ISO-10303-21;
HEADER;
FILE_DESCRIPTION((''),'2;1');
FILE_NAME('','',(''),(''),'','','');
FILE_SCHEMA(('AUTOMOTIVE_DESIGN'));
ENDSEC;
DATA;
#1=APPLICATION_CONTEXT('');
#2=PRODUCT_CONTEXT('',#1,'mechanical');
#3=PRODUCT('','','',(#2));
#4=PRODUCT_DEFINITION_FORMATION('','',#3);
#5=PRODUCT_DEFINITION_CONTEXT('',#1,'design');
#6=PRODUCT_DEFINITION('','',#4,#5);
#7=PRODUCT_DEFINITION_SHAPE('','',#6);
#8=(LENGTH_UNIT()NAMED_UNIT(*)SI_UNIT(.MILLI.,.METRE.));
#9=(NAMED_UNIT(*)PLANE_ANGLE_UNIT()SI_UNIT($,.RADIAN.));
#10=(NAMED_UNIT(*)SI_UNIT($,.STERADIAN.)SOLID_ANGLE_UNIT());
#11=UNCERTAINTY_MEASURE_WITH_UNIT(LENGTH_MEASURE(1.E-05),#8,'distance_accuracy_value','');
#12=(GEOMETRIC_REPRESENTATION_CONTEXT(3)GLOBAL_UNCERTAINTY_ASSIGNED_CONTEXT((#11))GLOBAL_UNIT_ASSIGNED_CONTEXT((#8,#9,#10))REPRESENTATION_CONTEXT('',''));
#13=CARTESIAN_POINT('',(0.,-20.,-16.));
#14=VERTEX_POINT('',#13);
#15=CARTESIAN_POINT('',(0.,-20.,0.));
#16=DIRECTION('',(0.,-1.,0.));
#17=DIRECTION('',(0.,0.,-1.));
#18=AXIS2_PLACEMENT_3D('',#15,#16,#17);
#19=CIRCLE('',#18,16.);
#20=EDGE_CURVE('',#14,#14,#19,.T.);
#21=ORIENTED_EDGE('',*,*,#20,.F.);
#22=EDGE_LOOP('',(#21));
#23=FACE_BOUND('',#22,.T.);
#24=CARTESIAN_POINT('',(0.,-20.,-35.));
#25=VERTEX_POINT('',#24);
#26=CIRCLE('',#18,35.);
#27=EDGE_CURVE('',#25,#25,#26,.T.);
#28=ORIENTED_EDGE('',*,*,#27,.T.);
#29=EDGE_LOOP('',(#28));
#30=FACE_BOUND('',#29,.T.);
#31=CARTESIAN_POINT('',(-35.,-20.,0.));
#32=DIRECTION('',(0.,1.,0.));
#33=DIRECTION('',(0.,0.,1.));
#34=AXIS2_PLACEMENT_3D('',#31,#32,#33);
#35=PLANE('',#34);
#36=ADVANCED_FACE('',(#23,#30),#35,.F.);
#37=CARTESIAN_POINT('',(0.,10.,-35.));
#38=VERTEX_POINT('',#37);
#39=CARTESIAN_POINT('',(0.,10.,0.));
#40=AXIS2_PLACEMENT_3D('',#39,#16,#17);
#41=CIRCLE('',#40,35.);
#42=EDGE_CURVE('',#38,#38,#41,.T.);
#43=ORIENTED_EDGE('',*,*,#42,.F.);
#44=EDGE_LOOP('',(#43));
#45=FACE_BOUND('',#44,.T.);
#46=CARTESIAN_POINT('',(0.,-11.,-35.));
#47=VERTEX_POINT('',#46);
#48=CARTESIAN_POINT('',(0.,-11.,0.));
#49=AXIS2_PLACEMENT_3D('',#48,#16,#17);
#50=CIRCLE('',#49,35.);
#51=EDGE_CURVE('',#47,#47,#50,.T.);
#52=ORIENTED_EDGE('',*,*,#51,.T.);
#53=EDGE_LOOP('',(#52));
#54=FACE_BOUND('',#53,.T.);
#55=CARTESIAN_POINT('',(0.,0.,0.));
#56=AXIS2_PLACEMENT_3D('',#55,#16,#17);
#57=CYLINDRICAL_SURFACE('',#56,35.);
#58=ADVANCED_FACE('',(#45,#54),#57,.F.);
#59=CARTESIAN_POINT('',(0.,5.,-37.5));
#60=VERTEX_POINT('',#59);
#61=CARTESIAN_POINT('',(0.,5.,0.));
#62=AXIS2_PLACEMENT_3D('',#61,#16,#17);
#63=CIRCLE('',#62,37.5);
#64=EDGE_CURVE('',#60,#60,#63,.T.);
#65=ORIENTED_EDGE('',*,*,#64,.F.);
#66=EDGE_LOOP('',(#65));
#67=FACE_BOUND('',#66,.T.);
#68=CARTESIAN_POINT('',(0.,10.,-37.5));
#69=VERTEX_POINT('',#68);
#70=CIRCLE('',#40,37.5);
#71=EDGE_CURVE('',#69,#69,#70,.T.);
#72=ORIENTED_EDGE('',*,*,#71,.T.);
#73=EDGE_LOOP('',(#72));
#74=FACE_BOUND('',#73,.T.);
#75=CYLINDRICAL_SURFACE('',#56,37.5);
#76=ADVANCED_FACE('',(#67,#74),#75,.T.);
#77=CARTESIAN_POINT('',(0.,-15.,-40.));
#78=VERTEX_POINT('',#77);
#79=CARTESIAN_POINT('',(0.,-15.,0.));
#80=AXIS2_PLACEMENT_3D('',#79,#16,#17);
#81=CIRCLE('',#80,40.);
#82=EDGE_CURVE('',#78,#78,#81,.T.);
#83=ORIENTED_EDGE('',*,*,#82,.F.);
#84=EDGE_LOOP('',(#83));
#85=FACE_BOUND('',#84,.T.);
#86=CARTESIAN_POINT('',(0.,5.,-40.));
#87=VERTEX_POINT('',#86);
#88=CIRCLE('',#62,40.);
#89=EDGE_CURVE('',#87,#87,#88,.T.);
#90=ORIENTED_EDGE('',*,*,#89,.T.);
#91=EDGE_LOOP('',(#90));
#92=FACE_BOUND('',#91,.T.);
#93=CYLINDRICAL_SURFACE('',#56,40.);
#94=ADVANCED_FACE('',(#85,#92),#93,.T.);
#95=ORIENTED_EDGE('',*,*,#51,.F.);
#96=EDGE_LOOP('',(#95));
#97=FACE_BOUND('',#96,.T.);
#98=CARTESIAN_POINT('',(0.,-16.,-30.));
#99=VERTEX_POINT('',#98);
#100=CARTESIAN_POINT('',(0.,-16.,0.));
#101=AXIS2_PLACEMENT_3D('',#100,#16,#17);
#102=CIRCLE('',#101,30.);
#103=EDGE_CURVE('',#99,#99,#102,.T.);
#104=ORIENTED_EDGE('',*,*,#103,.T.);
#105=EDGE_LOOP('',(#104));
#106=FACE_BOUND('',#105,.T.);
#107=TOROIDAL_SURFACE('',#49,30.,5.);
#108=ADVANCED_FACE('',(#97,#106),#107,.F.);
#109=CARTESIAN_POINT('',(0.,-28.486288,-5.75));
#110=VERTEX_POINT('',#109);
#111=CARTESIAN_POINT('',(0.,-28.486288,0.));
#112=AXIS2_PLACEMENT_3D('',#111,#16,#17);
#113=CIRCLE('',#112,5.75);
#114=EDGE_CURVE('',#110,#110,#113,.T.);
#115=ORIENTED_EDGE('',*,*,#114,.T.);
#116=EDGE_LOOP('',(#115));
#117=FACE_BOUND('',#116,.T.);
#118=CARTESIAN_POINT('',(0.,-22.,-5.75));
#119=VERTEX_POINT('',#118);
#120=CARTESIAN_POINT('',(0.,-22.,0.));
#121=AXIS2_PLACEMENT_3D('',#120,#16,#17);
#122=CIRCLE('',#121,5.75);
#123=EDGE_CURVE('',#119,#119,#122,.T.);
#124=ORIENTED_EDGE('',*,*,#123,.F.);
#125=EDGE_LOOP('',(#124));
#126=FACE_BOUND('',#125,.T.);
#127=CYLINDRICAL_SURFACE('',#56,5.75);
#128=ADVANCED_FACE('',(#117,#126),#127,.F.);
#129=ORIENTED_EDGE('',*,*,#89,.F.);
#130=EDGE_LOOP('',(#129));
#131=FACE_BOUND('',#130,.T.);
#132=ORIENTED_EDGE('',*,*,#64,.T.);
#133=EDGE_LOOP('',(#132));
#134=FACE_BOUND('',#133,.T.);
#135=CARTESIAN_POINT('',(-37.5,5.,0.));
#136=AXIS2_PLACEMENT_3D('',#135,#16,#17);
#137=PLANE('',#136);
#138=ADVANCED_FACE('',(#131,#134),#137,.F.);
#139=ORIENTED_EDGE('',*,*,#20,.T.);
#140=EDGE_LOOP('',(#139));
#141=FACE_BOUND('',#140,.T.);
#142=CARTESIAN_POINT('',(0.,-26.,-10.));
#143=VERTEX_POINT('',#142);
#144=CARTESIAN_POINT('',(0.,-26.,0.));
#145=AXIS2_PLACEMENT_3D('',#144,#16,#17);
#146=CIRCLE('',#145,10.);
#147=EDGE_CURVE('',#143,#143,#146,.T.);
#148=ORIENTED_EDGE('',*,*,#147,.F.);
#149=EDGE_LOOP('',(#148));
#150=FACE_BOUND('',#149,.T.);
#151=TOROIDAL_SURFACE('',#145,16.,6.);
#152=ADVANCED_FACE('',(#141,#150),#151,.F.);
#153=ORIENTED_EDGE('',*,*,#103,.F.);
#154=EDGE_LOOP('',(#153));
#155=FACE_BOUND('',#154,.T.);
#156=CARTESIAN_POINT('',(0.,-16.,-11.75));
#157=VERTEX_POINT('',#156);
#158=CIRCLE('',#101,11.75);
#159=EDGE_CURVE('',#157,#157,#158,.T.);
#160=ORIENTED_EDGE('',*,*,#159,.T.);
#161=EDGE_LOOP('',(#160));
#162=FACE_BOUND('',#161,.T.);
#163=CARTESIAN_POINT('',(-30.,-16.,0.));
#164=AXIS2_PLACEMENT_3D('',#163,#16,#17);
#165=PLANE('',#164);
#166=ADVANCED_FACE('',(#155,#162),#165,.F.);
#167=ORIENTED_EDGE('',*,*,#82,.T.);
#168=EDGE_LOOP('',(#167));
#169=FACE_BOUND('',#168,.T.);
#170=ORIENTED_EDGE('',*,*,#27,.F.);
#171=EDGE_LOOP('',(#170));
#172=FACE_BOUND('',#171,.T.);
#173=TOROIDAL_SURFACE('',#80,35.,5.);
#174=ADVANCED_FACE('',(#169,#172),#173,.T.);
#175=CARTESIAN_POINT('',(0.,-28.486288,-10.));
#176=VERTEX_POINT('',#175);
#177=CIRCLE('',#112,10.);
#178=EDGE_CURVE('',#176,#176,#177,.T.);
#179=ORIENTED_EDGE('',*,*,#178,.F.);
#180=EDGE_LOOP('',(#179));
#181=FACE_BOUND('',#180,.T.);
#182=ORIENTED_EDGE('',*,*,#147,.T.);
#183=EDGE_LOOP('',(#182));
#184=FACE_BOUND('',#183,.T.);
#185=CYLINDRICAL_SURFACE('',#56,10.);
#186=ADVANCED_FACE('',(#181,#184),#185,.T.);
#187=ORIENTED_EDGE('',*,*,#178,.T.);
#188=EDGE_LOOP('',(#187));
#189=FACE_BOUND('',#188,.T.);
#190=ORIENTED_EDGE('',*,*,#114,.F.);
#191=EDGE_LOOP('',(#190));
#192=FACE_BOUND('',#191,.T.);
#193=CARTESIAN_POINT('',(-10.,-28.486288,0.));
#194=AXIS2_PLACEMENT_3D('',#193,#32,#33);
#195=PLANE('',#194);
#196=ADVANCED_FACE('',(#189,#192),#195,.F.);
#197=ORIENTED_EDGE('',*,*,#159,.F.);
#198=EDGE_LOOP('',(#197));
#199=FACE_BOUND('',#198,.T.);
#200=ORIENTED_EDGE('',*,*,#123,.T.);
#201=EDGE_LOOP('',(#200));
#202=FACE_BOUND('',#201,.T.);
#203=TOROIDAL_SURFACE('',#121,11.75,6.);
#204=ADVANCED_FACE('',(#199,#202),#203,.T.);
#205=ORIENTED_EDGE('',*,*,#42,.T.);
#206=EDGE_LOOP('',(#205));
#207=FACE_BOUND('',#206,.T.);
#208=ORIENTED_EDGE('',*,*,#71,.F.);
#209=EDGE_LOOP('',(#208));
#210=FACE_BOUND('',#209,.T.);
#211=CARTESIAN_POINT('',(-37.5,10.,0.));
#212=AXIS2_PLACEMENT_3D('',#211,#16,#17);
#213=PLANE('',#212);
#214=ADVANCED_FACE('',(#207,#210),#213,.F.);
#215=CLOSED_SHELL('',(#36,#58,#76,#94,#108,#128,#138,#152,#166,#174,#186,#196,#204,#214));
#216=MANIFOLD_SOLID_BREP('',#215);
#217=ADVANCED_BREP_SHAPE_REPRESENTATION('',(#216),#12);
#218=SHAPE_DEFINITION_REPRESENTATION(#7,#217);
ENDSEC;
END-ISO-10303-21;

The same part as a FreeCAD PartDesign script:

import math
import FreeCAD as App
import Part
import Sketcher
Q = App.Units.Quantity

doc = App.newDocument("Part")
body = doc.addObject("PartDesign::Body", "Body")

# Sketch on XY plane
sketch1 = body.newObject("Sketcher::SketchObject", "Sketch")
sketch1.AttachmentSupport = (doc.getObject("XY_Plane"), [""])
sketch1.MapMode = "FlatFace"
sketch1.addGeometry([
    Part.LineSegment(App.Vector(-40, 5, 0), App.Vector(-40, -15, 0)),  # 0
    Part.ArcOfCircle(Part.Circle(App.Vector(-35, -15, 0), App.Vector(0, 0, 1), 5), math.radians(180), math.radians(270)),  # 1
    Part.LineSegment(App.Vector(-35, -20, 0), App.Vector(-16, -20, 0)),  # 2
    Part.ArcOfCircle(Part.Circle(App.Vector(-16, -26, 0), App.Vector(0, 0, 1), 6), math.radians(0), math.radians(90)),  # 3
    Part.LineSegment(App.Vector(-10, -26, 0), App.Vector(-10, -28.486288, 0)),  # 4
    Part.LineSegment(App.Vector(-10, -28.486288, 0), App.Vector(-5.75, -28.486288, 0)),  # 5
    Part.LineSegment(App.Vector(-5.75, -28.486288, 0), App.Vector(-5.75, -22, 0)),  # 6
    Part.ArcOfCircle(Part.Circle(App.Vector(-11.75, -22, 0), App.Vector(0, 0, 1), 6), math.radians(0), math.radians(90)),  # 7
    Part.LineSegment(App.Vector(-11.75, -16, 0), App.Vector(-30, -16, 0)),  # 8
    Part.ArcOfCircle(Part.Circle(App.Vector(-30, -11, 0), App.Vector(0, 0, 1), 5), math.radians(180), math.radians(270)),  # 9
    Part.LineSegment(App.Vector(-35, -11, 0), App.Vector(-35, 10, 0)),  # 10
    Part.LineSegment(App.Vector(-35, 10, 0), App.Vector(-37.5, 10, 0)),  # 11
    Part.LineSegment(App.Vector(-37.5, 10, 0), App.Vector(-37.5, 5, 0)),  # 12
    Part.LineSegment(App.Vector(-37.5, 5, 0), App.Vector(-40, 5, 0)),  # 13
], False)
sketch1.addConstraint([
    Sketcher.Constraint("Tangent", 0, 2, 1, 1),
    Sketcher.Constraint("Tangent", 1, 2, 2, 1),
    Sketcher.Constraint("Tangent", 2, 2, 3, 2),
    Sketcher.Constraint("Tangent", 3, 1, 4, 1),
    Sketcher.Constraint("Coincident", 4, 2, 5, 1),
    Sketcher.Constraint("Coincident", 5, 2, 6, 1),
    Sketcher.Constraint("Tangent", 6, 2, 7, 1),
    Sketcher.Constraint("Tangent", 7, 2, 8, 1),
    Sketcher.Constraint("Tangent", 8, 2, 9, 2),
    Sketcher.Constraint("Tangent", 9, 1, 10, 1),
    Sketcher.Constraint("Coincident", 10, 2, 11, 1),
    Sketcher.Constraint("Coincident", 11, 2, 12, 1),
    Sketcher.Constraint("Coincident", 12, 2, 13, 1),
    Sketcher.Constraint("Coincident", 13, 2, 0, 1),
    Sketcher.Constraint("Vertical", 0),
    Sketcher.Constraint("Horizontal", 2),
    Sketcher.Constraint("Vertical", 4),
    Sketcher.Constraint("Horizontal", 5),
    Sketcher.Constraint("Vertical", 6),
    Sketcher.Constraint("Horizontal", 8),
    Sketcher.Constraint("Vertical", 10),
    Sketcher.Constraint("Horizontal", 11),
    Sketcher.Constraint("Vertical", 12),
    Sketcher.Constraint("Horizontal", 13),
    Sketcher.Constraint("Equal", 3, 7),
    Sketcher.Constraint("Equal", 1, 9),
    Sketcher.Constraint("Vertical", 1, 2, 9, 1),
    Sketcher.Constraint("Equal", 11, 13),
    Sketcher.Constraint("Radius", 1, Q("5 mm")),
    Sketcher.Constraint("Radius", 3, Q("6 mm")),
    Sketcher.Constraint("DistanceX", 2, 1, 2, 2, Q("19 mm")),
    Sketcher.Constraint("DistanceY", 0, 2, 0, 1, Q("20 mm")),
    Sketcher.Constraint("DistanceY", 10, 1, 10, 2, Q("21 mm")),
    Sketcher.Constraint("DistanceY", 12, 2, 12, 1, Q("5 mm")),
    Sketcher.Constraint("DistanceX", 1, 3, -1, 1, Q("35 mm")),
    Sketcher.Constraint("DistanceY", 1, 3, -1, 1, Q("15 mm")),
    Sketcher.Constraint("DistanceX", 5, 1, 5, 2, Q("4.25 mm")),
    Sketcher.Constraint("DistanceY", 4, 2, 4, 1, Q("2.486288 mm")),
])
revolution = body.newObject("PartDesign::Revolution", "Revolution")
revolution.Profile = sketch1
revolution.ReferenceAxis = (sketch1, ["V_Axis"])
revolution.Angle = 360

doc.recompute()
